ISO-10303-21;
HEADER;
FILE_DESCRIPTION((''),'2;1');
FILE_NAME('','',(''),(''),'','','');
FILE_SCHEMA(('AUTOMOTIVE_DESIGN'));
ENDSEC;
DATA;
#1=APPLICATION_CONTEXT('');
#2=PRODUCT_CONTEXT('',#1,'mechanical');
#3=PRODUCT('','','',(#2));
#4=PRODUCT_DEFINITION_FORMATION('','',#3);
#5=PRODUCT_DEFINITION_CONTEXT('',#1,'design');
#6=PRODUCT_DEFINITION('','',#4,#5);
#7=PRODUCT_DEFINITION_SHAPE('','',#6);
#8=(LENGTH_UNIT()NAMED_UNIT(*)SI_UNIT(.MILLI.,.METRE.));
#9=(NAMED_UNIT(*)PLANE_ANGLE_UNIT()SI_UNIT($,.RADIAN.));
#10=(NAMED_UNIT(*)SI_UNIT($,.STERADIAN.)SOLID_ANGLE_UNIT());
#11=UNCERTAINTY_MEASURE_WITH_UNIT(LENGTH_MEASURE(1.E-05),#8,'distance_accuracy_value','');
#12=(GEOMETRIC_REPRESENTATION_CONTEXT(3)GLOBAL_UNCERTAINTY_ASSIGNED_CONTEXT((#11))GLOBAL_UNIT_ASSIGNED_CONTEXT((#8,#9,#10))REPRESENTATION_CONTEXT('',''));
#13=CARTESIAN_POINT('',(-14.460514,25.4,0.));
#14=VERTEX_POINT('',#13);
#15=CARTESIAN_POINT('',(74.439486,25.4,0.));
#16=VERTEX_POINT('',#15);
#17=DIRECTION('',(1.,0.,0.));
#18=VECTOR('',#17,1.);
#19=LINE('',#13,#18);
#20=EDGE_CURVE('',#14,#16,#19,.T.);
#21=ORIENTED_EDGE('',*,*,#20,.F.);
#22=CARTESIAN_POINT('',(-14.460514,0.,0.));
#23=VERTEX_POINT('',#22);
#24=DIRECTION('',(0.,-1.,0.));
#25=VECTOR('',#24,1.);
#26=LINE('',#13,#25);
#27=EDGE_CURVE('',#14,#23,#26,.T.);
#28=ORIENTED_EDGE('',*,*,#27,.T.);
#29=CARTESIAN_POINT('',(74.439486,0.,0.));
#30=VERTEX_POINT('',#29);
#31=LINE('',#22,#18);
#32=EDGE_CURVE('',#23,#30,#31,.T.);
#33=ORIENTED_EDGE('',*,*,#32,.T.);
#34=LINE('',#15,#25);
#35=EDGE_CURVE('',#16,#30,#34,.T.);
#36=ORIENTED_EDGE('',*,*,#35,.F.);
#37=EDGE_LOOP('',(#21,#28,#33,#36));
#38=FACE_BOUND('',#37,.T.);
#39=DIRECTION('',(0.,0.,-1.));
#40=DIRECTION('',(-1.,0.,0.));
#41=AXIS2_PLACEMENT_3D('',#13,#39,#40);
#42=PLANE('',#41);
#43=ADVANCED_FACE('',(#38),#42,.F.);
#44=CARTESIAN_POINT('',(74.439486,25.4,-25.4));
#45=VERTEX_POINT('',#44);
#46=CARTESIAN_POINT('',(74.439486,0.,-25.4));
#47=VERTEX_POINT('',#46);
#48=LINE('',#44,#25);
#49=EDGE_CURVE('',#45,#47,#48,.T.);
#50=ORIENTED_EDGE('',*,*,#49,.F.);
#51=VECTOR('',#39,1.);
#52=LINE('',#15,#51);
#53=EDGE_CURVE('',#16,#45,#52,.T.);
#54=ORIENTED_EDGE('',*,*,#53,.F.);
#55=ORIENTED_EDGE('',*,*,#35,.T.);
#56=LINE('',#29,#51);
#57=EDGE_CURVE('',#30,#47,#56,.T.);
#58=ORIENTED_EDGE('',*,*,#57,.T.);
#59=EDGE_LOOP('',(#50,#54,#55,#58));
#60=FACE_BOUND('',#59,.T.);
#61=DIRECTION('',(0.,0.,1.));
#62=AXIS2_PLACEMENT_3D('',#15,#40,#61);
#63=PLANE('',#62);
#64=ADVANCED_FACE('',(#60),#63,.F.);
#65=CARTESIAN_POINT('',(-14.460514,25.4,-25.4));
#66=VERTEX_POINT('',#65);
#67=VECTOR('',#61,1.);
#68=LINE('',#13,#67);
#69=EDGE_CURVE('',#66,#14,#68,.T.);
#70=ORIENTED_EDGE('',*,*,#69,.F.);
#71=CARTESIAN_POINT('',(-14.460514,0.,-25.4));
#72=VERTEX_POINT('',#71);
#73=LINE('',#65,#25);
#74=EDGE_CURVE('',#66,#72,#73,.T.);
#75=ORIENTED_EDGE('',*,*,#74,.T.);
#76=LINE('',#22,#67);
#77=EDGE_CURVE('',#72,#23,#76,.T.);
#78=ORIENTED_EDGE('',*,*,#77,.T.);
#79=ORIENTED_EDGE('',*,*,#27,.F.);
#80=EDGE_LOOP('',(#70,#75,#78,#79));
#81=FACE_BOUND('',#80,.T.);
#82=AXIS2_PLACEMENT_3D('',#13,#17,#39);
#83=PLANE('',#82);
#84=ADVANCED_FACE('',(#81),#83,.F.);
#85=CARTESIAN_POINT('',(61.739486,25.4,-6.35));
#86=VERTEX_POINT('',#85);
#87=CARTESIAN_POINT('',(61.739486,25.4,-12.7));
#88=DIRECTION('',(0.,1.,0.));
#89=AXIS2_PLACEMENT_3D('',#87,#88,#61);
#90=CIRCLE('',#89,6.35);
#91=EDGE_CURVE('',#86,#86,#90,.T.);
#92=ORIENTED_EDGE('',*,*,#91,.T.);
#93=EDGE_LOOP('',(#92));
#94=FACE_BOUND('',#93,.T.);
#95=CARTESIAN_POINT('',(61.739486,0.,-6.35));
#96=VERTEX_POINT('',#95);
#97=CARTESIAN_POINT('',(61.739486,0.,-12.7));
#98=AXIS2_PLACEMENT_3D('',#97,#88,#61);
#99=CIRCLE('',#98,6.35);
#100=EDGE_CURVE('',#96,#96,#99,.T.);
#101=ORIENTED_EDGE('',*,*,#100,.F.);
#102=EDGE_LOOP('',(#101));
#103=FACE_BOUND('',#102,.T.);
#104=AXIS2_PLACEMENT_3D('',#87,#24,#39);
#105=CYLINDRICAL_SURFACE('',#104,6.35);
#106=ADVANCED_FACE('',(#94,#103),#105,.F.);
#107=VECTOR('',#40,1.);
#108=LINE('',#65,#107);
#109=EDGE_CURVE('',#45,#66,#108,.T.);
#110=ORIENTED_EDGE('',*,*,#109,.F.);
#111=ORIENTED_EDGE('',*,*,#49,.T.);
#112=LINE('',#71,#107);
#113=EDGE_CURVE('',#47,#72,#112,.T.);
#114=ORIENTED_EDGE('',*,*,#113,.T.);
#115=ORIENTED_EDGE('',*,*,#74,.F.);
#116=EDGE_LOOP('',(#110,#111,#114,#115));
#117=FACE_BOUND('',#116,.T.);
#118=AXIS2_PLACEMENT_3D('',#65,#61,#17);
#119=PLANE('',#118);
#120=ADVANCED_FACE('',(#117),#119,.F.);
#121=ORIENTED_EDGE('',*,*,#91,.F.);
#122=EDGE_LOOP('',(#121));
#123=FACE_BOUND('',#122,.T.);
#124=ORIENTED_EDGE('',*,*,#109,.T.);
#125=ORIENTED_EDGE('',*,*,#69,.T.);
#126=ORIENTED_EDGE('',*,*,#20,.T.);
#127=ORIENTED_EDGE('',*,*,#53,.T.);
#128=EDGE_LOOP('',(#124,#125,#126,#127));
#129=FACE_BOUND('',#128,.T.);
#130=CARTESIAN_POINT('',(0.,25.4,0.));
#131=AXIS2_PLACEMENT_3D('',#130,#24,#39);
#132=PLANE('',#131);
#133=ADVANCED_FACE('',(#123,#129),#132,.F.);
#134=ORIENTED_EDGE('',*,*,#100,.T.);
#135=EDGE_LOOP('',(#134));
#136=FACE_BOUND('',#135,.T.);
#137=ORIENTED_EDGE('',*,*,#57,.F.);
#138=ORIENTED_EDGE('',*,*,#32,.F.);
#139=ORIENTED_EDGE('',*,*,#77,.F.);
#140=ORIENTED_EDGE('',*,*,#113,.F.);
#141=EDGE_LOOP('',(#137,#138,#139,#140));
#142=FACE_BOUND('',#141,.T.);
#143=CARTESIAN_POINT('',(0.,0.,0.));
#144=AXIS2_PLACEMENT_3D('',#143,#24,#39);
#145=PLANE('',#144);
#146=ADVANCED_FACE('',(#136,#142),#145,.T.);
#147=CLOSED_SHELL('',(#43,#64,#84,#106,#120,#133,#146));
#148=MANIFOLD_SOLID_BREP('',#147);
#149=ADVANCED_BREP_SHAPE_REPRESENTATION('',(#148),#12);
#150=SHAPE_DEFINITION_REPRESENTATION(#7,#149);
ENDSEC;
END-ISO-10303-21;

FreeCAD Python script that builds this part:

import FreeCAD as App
import Part
import Sketcher
Q = App.Units.Quantity

doc = App.newDocument("Part")
body = doc.addObject("PartDesign::Body", "Body")

# Sketch on XZ plane
sketch1 = doc.addObject("Sketcher::SketchObject", "Sketch")
body.addObject(sketch1)
sketch1.AttachmentSupport = (doc.XZ_Plane, [""])
sketch1.MapMode = "FlatFace"
sketch1.addGeometry([
    Part.LineSegment(App.Vector(-14, -25, 0), App.Vector(-14, 0, 0)),  # 0
    Part.LineSegment(App.Vector(-14, 0, 0), App.Vector(74, 0, 0)),  # 1
    Part.LineSegment(App.Vector(74, 0, 0), App.Vector(74, -25, 0)),  # 2
    Part.LineSegment(App.Vector(74, -25, 0), App.Vector(-14, -25, 0)),  # 3
    Part.Circle(App.Vector(62, -13, 0), App.Vector(0, 0, 1), 6),  # 4
], False)
sketch1.addConstraint([
    Sketcher.Constraint("Coincident", 0, 2, 1, 1),
    Sketcher.Constraint("Coincident", 1, 2, 2, 1),
    Sketcher.Constraint("Coincident", 2, 2, 3, 1),
    Sketcher.Constraint("Coincident", 3, 2, 0, 1),
    Sketcher.Constraint("Vertical", 0),
    Sketcher.Constraint("Horizontal", 1),
    Sketcher.Constraint("Vertical", 2),
    Sketcher.Constraint("Horizontal", 3),
    Sketcher.Constraint("PointOnObject", 0, 2, -1),
    Sketcher.Constraint("Diameter", 4, Q("0.5 in")),
    Sketcher.Constraint("DistanceY", 0, 1, 0, 2, Q("1 in")),
    Sketcher.Constraint("DistanceX", 1, 1, 1, 2, Q("3.5 in")),
    Sketcher.Constraint("DistanceX", 0, 2, 4, 3, Q("3 in")),
    Sketcher.Constraint("DistanceY", 4, 3, -1, 1, Q("0.5 in")),
    Sketcher.Constraint("DistanceX", -1, 1, 4, 3, Q("61.739486 mm")),
])
pad1 = doc.addObject("PartDesign::Pad", "Pad")
body.addObject(pad1)
pad1.Profile = sketch1
pad1.Length = Q("1 in")
pad1.Reversed = True

doc.recompute()
